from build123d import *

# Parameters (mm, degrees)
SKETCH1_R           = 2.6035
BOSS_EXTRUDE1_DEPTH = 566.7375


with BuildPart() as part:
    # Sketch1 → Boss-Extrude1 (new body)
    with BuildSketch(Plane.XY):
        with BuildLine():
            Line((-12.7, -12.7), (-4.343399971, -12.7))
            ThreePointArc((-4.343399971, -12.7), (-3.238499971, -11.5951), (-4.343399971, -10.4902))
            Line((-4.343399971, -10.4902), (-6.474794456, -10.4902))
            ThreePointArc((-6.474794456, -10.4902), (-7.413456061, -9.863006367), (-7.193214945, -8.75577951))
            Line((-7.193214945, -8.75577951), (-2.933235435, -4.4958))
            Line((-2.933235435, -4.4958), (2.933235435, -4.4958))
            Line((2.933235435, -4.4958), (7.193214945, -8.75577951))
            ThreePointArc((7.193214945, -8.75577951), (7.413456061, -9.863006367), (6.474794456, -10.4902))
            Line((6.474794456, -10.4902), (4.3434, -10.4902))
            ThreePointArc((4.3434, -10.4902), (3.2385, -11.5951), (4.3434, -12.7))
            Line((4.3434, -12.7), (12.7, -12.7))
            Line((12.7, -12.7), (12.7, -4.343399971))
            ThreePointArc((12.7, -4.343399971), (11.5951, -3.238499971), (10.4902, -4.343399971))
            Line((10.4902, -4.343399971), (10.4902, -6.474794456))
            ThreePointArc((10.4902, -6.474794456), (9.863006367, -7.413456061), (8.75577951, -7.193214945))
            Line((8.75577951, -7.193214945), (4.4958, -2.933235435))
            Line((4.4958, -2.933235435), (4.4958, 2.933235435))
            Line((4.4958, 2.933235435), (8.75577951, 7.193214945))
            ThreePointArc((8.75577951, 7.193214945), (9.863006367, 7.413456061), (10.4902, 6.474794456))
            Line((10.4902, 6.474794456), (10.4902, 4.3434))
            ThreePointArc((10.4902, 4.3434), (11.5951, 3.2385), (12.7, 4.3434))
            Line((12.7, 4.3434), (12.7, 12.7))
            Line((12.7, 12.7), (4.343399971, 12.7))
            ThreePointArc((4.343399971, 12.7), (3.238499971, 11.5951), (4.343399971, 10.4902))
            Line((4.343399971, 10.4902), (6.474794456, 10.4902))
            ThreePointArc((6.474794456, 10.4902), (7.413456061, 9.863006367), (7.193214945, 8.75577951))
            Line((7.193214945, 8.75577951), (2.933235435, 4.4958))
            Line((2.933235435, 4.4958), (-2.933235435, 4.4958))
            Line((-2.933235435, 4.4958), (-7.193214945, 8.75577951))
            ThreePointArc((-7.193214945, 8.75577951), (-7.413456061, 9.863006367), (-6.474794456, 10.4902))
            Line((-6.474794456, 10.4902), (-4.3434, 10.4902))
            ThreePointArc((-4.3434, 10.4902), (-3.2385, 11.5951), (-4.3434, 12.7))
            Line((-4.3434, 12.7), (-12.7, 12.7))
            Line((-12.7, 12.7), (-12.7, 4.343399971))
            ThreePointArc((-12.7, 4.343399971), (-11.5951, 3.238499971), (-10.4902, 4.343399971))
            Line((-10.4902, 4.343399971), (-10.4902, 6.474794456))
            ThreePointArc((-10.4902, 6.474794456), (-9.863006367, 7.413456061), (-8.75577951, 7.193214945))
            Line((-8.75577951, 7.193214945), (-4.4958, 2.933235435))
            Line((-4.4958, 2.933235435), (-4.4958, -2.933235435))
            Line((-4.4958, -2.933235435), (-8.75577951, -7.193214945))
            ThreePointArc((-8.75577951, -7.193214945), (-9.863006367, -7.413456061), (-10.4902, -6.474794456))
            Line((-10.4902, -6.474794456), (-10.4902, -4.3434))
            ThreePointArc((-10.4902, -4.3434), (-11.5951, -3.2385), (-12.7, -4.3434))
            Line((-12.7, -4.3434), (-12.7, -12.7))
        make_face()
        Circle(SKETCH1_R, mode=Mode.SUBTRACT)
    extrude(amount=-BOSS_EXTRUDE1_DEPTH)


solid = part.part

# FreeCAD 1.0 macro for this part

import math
import FreeCAD as App
import Part
import Sketcher
from FreeCAD import Vector
Q = App.Units.Quantity

doc = App.newDocument("Part")
body = doc.addObject("PartDesign::Body", "Body")

# Sketch on XY plane
sketch1 = body.newObject("Sketcher::SketchObject", "Sketch")
sketch1.AttachmentSupport = (doc.getObject("XY_Plane"), [""])
sketch1.MapMode = "FlatFace"
sketch1.addGeometry(Part.LineSegment(Vector(-12.7, -12.7, 0), Vector(-4.3, -12.7, 0)), False)
sketch1.addGeometry(Part.ArcOfCircle(Part.Circle(Vector(-4.3, -11.6, 0), Vector(0, 0, 1), 1.1), math.radians(-90), math.radians(90)), False)
sketch1.addGeometry(Part.LineSegment(Vector(-4.3, -10.5, 0), Vector(-6.5, -10.5, 0)), False)
sketch1.addGeometry(Part.ArcOfCircle(Part.Circle(Vector(-6.5, -9.5, 0), Vector(0, 0, 1), 1), math.radians(135), math.radians(270)), False)
sketch1.addGeometry(Part.LineSegment(Vector(-7.2, -8.8, 0), Vector(-2.9, -4.5, 0)), False)
sketch1.addGeometry(Part.LineSegment(Vector(-2.9, -4.5, 0), Vector(2.9, -4.5, 0)), False)
sketch1.addGeometry(Part.LineSegment(Vector(2.9, -4.5, 0), Vector(7.2, -8.8, 0)), False)
sketch1.addGeometry(Part.ArcOfCircle(Part.Circle(Vector(6.5, -9.5, 0), Vector(0, 0, 1), 1), math.radians(-90), math.radians(45)), False)
sketch1.addGeometry(Part.LineSegment(Vector(6.5, -10.5, 0), Vector(4.3, -10.5, 0)), False)
sketch1.addGeometry(Part.ArcOfCircle(Part.Circle(Vector(4.3, -11.6, 0), Vector(0, 0, 1), 1.1), math.radians(90), math.radians(270)), False)
sketch1.addGeometry(Part.LineSegment(Vector(4.3, -12.7, 0), Vector(12.7, -12.7, 0)), False)
sketch1.addGeometry(Part.LineSegment(Vector(12.7, -12.7, 0), Vector(12.7, -4.3, 0)), False)
sketch1.addGeometry(Part.ArcOfCircle(Part.Circle(Vector(11.6, -4.3, 0), Vector(0, 0, 1), 1.1), math.radians(0), math.radians(180)), False)
sketch1.addGeometry(Part.LineSegment(Vector(10.5, -4.3, 0), Vector(10.5, -6.5, 0)), False)
sketch1.addGeometry(Part.ArcOfCircle(Part.Circle(Vector(9.5, -6.5, 0), Vector(0, 0, 1), 1), math.radians(-135), math.radians(0)), False)
sketch1.addGeometry(Part.LineSegment(Vector(8.8, -7.2, 0), Vector(4.5, -2.9, 0)), False)
sketch1.addGeometry(Part.LineSegment(Vector(4.5, -2.9, 0), Vector(4.5, 2.9, 0)), False)
sketch1.addGeometry(Part.LineSegment(Vector(4.5, 2.9, 0), Vector(8.8, 7.2, 0)), False)
sketch1.addGeometry(Part.ArcOfCircle(Part.Circle(Vector(9.5, 6.5, 0), Vector(0, 0, 1), 1), math.radians(0), math.radians(135)), False)
sketch1.addGeometry(Part.LineSegment(Vector(10.5, 6.5, 0), Vector(10.5, 4.3, 0)), False)
sketch1.addGeometry(Part.ArcOfCircle(Part.Circle(Vector(11.6, 4.3, 0), Vector(0, 0, 1), 1.1), math.radians(180), math.radians(360)), False)
sketch1.addGeometry(Part.LineSegment(Vector(12.7, 4.3, 0), Vector(12.7, 12.7, 0)), False)
sketch1.addGeometry(Part.LineSegment(Vector(12.7, 12.7, 0), Vector(4.3, 12.7, 0)), False)
sketch1.addGeometry(Part.ArcOfCircle(Part.Circle(Vector(4.3, 11.6, 0), Vector(0, 0, 1), 1.1), math.radians(90), math.radians(270)), False)
sketch1.addGeometry(Part.LineSegment(Vector(4.3, 10.5, 0), Vector(6.5, 10.5, 0)), False)
sketch1.addGeometry(Part.ArcOfCircle(Part.Circle(Vector(6.5, 9.5, 0), Vector(0, 0, 1), 1), math.radians(-45), math.radians(90)), False)
sketch1.addGeometry(Part.LineSegment(Vector(7.2, 8.8, 0), Vector(2.9, 4.5, 0)), False)
sketch1.addGeometry(Part.LineSegment(Vector(2.9, 4.5, 0), Vector(-2.9, 4.5, 0)), False)
sketch1.addGeometry(Part.LineSegment(Vector(-2.9, 4.5, 0), Vector(-7.2, 8.8, 0)), False)
sketch1.addGeometry(Part.ArcOfCircle(Part.Circle(Vector(-6.5, 9.5, 0), Vector(0, 0, 1), 1), math.radians(90), math.radians(225)), False)
sketch1.addGeometry(Part.LineSegment(Vector(-6.5, 10.5, 0), Vector(-4.3, 10.5, 0)), False)
sketch1.addGeometry(Part.ArcOfCircle(Part.Circle(Vector(-4.3, 11.6, 0), Vector(0, 0, 1), 1.1), math.radians(-90), math.radians(90)), False)
sketch1.addGeometry(Part.LineSegment(Vector(-4.3, 12.7, 0), Vector(-12.7, 12.7, 0)), False)
sketch1.addGeometry(Part.LineSegment(Vector(-12.7, 12.7, 0), Vector(-12.7, 4.3, 0)), False)
sketch1.addGeometry(Part.ArcOfCircle(Part.Circle(Vector(-11.6, 4.3, 0), Vector(0, 0, 1), 1.1), math.radians(180), math.radians(360)), False)
sketch1.addGeometry(Part.LineSegment(Vector(-10.5, 4.3, 0), Vector(-10.5, 6.5, 0)), False)
sketch1.addGeometry(Part.ArcOfCircle(Part.Circle(Vector(-9.5, 6.5, 0), Vector(0, 0, 1), 1), math.radians(45), math.radians(180)), False)
sketch1.addGeometry(Part.LineSegment(Vector(-8.8, 7.2, 0), Vector(-4.5, 2.9, 0)), False)
sketch1.addGeometry(Part.LineSegment(Vector(-4.5, 2.9, 0), Vector(-4.5, -2.9, 0)), False)
sketch1.addGeometry(Part.LineSegment(Vector(-4.5, -2.9, 0), Vector(-8.8, -7.2, 0)), False)
sketch1.addGeometry(Part.ArcOfCircle(Part.Circle(Vector(-9.5, -6.5, 0), Vector(0, 0, 1), 1), math.radians(180), math.radians(315)), False)
sketch1.addGeometry(Part.LineSegment(Vector(-10.5, -6.5, 0), Vector(-10.5, -4.3, 0)), False)
sketch1.addGeometry(Part.ArcOfCircle(Part.Circle(Vector(-11.6, -4.3, 0), Vector(0, 0, 1), 1.1), math.radians(0), math.radians(180)), False)
sketch1.addGeometry(Part.LineSegment(Vector(-12.7, -4.3, 0), Vector(-12.7, -12.7, 0)), False)
sketch1.addGeometry(Part.Circle(Vector(0, 0, 0), Vector(0, 0, 1), 2.6), False)
sketch1.addConstraint(Sketcher.Constraint("Tangent", 0, 2, 1, 1))
sketch1.addConstraint(Sketcher.Constraint("Tangent", 1, 2, 2, 1))
sketch1.addConstraint(Sketcher.Constraint("Tangent", 2, 2, 3, 2))
sketch1.addConstraint(Sketcher.Constraint("Tangent", 3, 1, 4, 1))
sketch1.addConstraint(Sketcher.Constraint("Coincident", 4, 2, 5, 1))
sketch1.addConstraint(Sketcher.Constraint("Coincident", 5, 2, 6, 1))
sketch1.addConstraint(Sketcher.Constraint("Tangent", 6, 2, 7, 2))
sketch1.addConstraint(Sketcher.Constraint("Tangent", 7, 1, 8, 1))
sketch1.addConstraint(Sketcher.Constraint("Tangent", 8, 2, 9, 1))
sketch1.addConstraint(Sketcher.Constraint("Tangent", 9, 2, 10, 1))
sketch1.addConstraint(Sketcher.Constraint("Coincident", 10, 2, 11, 1))
sketch1.addConstraint(Sketcher.Constraint("Tangent", 11, 2, 12, 1))
sketch1.addConstraint(Sketcher.Constraint("Tangent", 12, 2, 13, 1))
sketch1.addConstraint(Sketcher.Constraint("Tangent", 13, 2, 14, 2))
sketch1.addConstraint(Sketcher.Constraint("Tangent", 14, 1, 15, 1))
sketch1.addConstraint(Sketcher.Constraint("Coincident", 15, 2, 16, 1))
sketch1.addConstraint(Sketcher.Constraint("Coincident", 16, 2, 17, 1))
sketch1.addConstraint(Sketcher.Constraint("Tangent", 17, 2, 18, 2))
sketch1.addConstraint(Sketcher.Constraint("Tangent", 18, 1, 19, 1))
sketch1.addConstraint(Sketcher.Constraint("Tangent", 19, 2, 20, 1))
sketch1.addConstraint(Sketcher.Constraint("Tangent", 20, 2, 21, 1))
sketch1.addConstraint(Sketcher.Constraint("Coincident", 21, 2, 22, 1))
sketch1.addConstraint(Sketcher.Constraint("Tangent", 22, 2, 23, 1))
sketch1.addConstraint(Sketcher.Constraint("Tangent", 23, 2, 24, 1))
sketch1.addConstraint(Sketcher.Constraint("Tangent", 24, 2, 25, 2))
sketch1.addConstraint(Sketcher.Constraint("Tangent", 25, 1, 26, 1))
sketch1.addConstraint(Sketcher.Constraint("Coincident", 26, 2, 27, 1))
sketch1.addConstraint(Sketcher.Constraint("Coincident", 27, 2, 28, 1))
sketch1.addConstraint(Sketcher.Constraint("Tangent", 28, 2, 29, 2))
sketch1.addConstraint(Sketcher.Constraint("Tangent", 29, 1, 30, 1))
sketch1.addConstraint(Sketcher.Constraint("Tangent", 30, 2, 31, 1))
sketch1.addConstraint(Sketcher.Constraint("Tangent", 31, 2, 32, 1))
sketch1.addConstraint(Sketcher.Constraint("Coincident", 32, 2, 33, 1))
sketch1.addConstraint(Sketcher.Constraint("Tangent", 33, 2, 34, 1))
sketch1.addConstraint(Sketcher.Constraint("Tangent", 34, 2, 35, 1))
sketch1.addConstraint(Sketcher.Constraint("Tangent", 35, 2, 36, 2))
sketch1.addConstraint(Sketcher.Constraint("Tangent", 36, 1, 37, 1))
sketch1.addConstraint(Sketcher.Constraint("Coincident", 37, 2, 38, 1))
sketch1.addConstraint(Sketcher.Constraint("Coincident", 38, 2, 39, 1))
sketch1.addConstraint(Sketcher.Constraint("Tangent", 39, 2, 40, 2))
sketch1.addConstraint(Sketcher.Constraint("Tangent", 40, 1, 41, 1))
sketch1.addConstraint(Sketcher.Constraint("Tangent", 41, 2, 42, 1))
sketch1.addConstraint(Sketcher.Constraint("Tangent", 42, 2, 43, 1))
sketch1.addConstraint(Sketcher.Constraint("Coincident", 43, 2, 0, 1))
sketch1.addConstraint(Sketcher.Constraint("Horizontal", 0))
sketch1.addConstraint(Sketcher.Constraint("Horizontal", 2))
sketch1.addConstraint(Sketcher.Constraint("Horizontal", 5))
sketch1.addConstraint(Sketcher.Constraint("Horizontal", 8))
sketch1.addConstraint(Sketcher.Constraint("Horizontal", 10))
sketch1.addConstraint(Sketcher.Constraint("Vertical", 11))
sketch1.addConstraint(Sketcher.Constraint("Vertical", 13))
sketch1.addConstraint(Sketcher.Constraint("Vertical", 16))
sketch1.addConstraint(Sketcher.Constraint("Vertical", 19))
sketch1.addConstraint(Sketcher.Constraint("Vertical", 21))
sketch1.addConstraint(Sketcher.Constraint("Horizontal", 22))
sketch1.addConstraint(Sketcher.Constraint("Horizontal", 24))
sketch1.addConstraint(Sketcher.Constraint("Horizontal", 27))
sketch1.addConstraint(Sketcher.Constraint("Horizontal", 30))
sketch1.addConstraint(Sketcher.Constraint("Horizontal", 32))
sketch1.addConstraint(Sketcher.Constraint("Vertical", 33))
sketch1.addConstraint(Sketcher.Constraint("Vertical", 35))
sketch1.addConstraint(Sketcher.Constraint("Vertical", 38))
sketch1.addConstraint(Sketcher.Constraint("Vertical", 41))
sketch1.addConstraint(Sketcher.Constraint("Vertical", 43))
sketch1.addConstraint(Sketcher.Constraint("Coincident", 44, 3, -1, 1))
sketch1.addConstraint(Sketcher.Constraint("Equal", 3, 7))
sketch1.addConstraint(Sketcher.Constraint("Equal", 1, 9))
sketch1.addConstraint(Sketcher.Constraint("Equal", 9, 12))
sketch1.addConstraint(Sketcher.Constraint("Equal", 7, 14))
sketch1.addConstraint(Sketcher.Constraint("Equal", 14, 18))
sketch1.addConstraint(Sketcher.Constraint("Equal", 12, 20))
sketch1.addConstraint(Sketcher.Constraint("Equal", 20, 23))
sketch1.addConstraint(Sketcher.Constraint("Equal", 18, 25))
sketch1.addConstraint(Sketcher.Constraint("Equal", 25, 29))
sketch1.addConstraint(Sketcher.Constraint("Equal", 23, 31))
sketch1.addConstraint(Sketcher.Constraint("Equal", 31, 34))
sketch1.addConstraint(Sketcher.Constraint("Equal", 29, 36))
sketch1.addConstraint(Sketcher.Constraint("Equal", 36, 40))
sketch1.addConstraint(Sketcher.Constraint("Equal", 34, 42))
sketch1.addConstraint(Sketcher.Constraint("Symmetric", 1, 3, 23, 3, -1, 1))
sketch1.addConstraint(Sketcher.Constraint("Symmetric", 7, 3, 29, 3, -1, 1))
sketch1.addConstraint(Sketcher.Constraint("Symmetric", 12, 3, 34, 3, -1, 1))
sketch1.addConstraint(Sketcher.Constraint("Symmetric", 18, 3, 40, 3, -1, 1))
sketch1.addConstraint(Sketcher.Constraint("Symmetric", 3, 1, 25, 1, -1, 1))
sketch1.addConstraint(Sketcher.Constraint("Symmetric", 5, 2, 27, 2, -1, 1))
sketch1.addConstraint(Sketcher.Constraint("Symmetric", 14, 1, 36, 1, -1, 1))
sketch1.addConstraint(Sketcher.Constraint("Symmetric", 16, 2, 38, 2, -1, 1))
sketch1.addConstraint(Sketcher.Constraint("Symmetric", 3, 3, 7, 3, -2))
sketch1.addConstraint(Sketcher.Constraint("Symmetric", 20, 3, 34, 3, -2))
sketch1.addConstraint(Sketcher.Constraint("Symmetric", 17, 2, 36, 1, -2))
sketch1.addConstraint(Sketcher.Constraint("Perpendicular", 4, 6))
sketch1.addConstraint(Sketcher.Constraint("Parallel", 6, 15))
sketch1.addConstraint(Sketcher.Constraint("Perpendicular", 15, 17))
sketch1.addConstraint(Sketcher.Constraint("Horizontal", 12, 3, 42, 3))
sketch1.addConstraint(Sketcher.Constraint("Vertical", 9, 3, 23, 3))
sketch1.addConstraint(Sketcher.Constraint("Vertical", 1, 3, 31, 3))
sketch1.addConstraint(Sketcher.Constraint("Equal", 32, 11))
sketch1.addConstraint(Sketcher.Constraint("Equal", 30, 13))
sketch1.addConstraint(Sketcher.Constraint("Equal", 27, 16))
sketch1.addConstraint(Sketcher.Constraint("Equal", 6, 15))
sketch1.addConstraint(Sketcher.Constraint("Radius", 3, Q("0.04 in")))
sketch1.addConstraint(Sketcher.Constraint("Diameter", 44, Q("0.205 in")))
sketch1.addConstraint(Sketcher.Constraint("DistanceY", 0, 2, -1, 1, Q("0.5 in")))
sketch1.addConstraint(Sketcher.Constraint("Radius", 1, Q("0.0435 in")))
sketch1.addConstraint(Sketcher.Constraint("DistanceX", 0, 1, 0, 2, Q("0.329 in")))
sketch1.addConstraint(Sketcher.Constraint("DistanceY", 4, 2, -1, 1, Q("0.177 in")))
sketch1.addConstraint(Sketcher.Constraint("DistanceX", 5, 1, 5, 2, Q("5.866471 mm")))
pad1 = body.newObject("PartDesign::Pad", "Pad")
pad1.Profile = sketch1
pad1.Length = Q("22.3125 in")
pad1.Reversed = True

doc.recompute()
